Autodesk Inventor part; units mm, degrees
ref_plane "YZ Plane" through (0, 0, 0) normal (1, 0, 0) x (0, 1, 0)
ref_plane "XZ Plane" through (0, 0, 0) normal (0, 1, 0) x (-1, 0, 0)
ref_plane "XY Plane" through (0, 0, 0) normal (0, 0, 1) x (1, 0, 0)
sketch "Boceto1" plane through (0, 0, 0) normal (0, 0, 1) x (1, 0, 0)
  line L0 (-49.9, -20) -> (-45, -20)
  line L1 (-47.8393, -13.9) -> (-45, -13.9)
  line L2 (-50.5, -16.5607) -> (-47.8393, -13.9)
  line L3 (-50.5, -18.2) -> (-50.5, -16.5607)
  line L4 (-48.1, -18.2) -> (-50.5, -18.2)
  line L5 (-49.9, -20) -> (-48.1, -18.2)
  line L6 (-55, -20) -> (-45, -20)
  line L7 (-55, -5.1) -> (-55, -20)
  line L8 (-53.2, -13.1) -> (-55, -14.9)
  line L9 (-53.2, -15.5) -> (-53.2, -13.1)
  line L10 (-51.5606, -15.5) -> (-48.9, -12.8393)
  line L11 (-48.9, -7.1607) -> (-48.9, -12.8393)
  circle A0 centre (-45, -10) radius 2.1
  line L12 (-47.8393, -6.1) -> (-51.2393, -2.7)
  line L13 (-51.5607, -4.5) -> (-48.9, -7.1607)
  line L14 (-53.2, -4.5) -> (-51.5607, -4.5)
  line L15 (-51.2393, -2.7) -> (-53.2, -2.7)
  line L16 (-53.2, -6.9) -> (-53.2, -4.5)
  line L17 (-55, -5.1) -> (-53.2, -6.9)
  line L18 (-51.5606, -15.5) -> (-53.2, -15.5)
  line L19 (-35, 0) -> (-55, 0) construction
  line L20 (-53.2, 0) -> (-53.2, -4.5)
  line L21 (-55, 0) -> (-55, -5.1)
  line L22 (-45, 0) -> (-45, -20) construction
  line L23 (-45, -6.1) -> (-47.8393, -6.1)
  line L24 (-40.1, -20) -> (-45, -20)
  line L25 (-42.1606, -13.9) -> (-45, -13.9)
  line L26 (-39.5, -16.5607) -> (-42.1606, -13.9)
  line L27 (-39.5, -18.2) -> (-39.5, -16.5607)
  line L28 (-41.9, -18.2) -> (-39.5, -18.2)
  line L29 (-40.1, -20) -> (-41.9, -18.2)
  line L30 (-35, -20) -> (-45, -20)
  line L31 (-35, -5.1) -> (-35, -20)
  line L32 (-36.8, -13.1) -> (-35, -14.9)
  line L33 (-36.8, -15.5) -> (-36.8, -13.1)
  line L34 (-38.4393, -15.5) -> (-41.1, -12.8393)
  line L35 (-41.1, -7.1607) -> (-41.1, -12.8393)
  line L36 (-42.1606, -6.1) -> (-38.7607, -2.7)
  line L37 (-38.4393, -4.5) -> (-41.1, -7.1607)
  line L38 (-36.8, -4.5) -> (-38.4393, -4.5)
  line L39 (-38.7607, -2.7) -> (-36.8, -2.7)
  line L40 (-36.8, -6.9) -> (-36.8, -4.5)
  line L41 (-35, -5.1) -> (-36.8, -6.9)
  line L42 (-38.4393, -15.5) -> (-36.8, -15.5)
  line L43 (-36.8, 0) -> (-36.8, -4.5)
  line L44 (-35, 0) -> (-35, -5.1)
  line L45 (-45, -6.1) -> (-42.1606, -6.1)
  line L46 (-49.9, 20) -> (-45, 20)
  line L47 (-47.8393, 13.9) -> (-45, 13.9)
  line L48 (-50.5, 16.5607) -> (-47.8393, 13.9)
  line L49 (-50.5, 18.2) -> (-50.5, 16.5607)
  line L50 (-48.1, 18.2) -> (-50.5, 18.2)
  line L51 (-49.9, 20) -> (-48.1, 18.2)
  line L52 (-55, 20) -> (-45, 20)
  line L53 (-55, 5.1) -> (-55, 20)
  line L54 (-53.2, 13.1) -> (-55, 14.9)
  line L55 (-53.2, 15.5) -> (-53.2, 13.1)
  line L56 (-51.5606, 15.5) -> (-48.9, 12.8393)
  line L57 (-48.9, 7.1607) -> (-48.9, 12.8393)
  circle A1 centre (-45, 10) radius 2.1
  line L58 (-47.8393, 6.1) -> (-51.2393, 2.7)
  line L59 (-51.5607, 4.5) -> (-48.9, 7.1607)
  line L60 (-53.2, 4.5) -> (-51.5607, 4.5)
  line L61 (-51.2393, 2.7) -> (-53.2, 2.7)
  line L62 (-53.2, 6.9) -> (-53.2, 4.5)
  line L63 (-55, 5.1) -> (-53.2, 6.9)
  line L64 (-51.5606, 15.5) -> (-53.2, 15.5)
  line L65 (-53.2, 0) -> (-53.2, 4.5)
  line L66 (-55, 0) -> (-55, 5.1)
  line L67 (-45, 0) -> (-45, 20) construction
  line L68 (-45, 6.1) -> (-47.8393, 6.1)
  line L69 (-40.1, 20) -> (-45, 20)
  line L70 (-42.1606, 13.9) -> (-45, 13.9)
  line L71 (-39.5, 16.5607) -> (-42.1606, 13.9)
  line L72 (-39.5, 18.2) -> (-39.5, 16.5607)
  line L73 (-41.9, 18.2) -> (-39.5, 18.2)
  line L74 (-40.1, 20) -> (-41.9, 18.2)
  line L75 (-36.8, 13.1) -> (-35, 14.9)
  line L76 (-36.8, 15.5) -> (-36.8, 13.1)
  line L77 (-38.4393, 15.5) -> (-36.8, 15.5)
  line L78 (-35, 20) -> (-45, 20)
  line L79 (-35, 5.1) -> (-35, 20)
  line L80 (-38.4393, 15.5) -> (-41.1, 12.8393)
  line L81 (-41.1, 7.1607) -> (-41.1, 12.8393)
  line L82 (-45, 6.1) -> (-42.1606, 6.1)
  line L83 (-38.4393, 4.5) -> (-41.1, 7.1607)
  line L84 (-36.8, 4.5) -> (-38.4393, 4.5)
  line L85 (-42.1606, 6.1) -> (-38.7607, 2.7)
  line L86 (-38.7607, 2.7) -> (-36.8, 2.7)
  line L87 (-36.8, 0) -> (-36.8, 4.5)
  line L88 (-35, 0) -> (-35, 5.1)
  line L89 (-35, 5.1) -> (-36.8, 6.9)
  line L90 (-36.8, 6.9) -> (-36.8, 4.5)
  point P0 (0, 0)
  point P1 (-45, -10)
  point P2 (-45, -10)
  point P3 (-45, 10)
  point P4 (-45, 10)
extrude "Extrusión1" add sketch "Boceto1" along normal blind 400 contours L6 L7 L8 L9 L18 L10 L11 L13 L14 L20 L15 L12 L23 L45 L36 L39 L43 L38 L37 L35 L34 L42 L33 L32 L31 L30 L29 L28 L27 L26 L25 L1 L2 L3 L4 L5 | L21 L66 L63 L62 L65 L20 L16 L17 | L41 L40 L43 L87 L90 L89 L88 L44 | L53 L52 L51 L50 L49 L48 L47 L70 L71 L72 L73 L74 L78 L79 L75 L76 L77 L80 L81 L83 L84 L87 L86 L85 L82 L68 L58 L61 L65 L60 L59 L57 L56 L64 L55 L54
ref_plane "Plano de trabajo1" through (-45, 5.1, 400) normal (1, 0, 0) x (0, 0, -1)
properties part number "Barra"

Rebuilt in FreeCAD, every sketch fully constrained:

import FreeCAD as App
import Part
import Sketcher
from FreeCAD import Vector


def add_polygon(sketch, points):
    """Adds a closed chain of lines whose ends are joined by coincident constraints."""
    first, n = sketch.GeometryCount, len(points)
    for a, b in zip(points, points[1:] + points[:1]):
        sketch.addGeometry(Part.LineSegment(App.Vector(*a, 0), App.Vector(*b, 0)), False)
    for i in range(n):
        sketch.addConstraint(Sketcher.Constraint("Coincident", first + i, 2, first + (i + 1) % n, 1))

doc = App.newDocument("Part")
params = doc.addObject("Spreadsheet::Sheet", "Params")
for row, (alias, value) in enumerate([
    ("sketch1_diameter", "4.2 mm"),
    ("sketch1_width", "5.1 mm"),
    ("sketch1_width2", "2.4 mm"),
    ("sketch1_height", "10.2 mm"),
    ("sketch1_height2", "5.4 mm"),
    ("pad1_length", "400 mm"),
], start=1):
    params.set(f"A{row}", alias)
    params.set(f"B{row}", "=" + value)
    params.setAlias(f"B{row}", alias)

body = doc.addObject("PartDesign::Body", "Body")

sketch1 = body.newObject("Sketcher::SketchObject", "Sketch")
sketch1.AttachmentSupport = (doc.getObject("XY_Plane"), [""])
sketch1.MapMode = "FlatFace"
add_polygon(sketch1, [(-55, -20), (-49.9, -20), (-48.1, -18.2), (-50.5, -18.2), (-50.5, -16.6), (-47.8, -13.9), (-42.2, -13.9), (-39.5, -16.6), (-39.5, -18.2), (-41.9, -18.2), (-40.1, -20), (-35, -20), (-35, -14.9), (-36.8, -13.1), (-36.8, -15.5), (-38.4, -15.5), (-41.1, -12.8), (-41.1, -7.2), (-38.4, -4.5), (-36.8, -4.5), (-36.8, -6.9), (-35, -5.1), (-35, 5.1), (-36.8, 6.9), (-36.8, 4.5), (-38.4, 4.5), (-41.1, 7.2), (-41.1, 12.8), (-38.4, 15.5), (-36.8, 15.5), (-36.8, 13.1), (-35, 14.9), (-35, 20), (-40.1, 20), (-41.9, 18.2), (-39.5, 18.2), (-39.5, 16.6), (-42.2, 13.9), (-47.8, 13.9), (-50.5, 16.6), (-50.5, 18.2), (-48.1, 18.2), (-49.9, 20), (-55, 20), (-55, 14.9), (-53.2, 13.1), (-53.2, 15.5), (-51.6, 15.5), (-48.9, 12.8), (-48.9, 7.2), (-51.6, 4.5), (-53.2, 4.5), (-53.2, 6.9), (-55, 5.1), (-55, -5.1), (-53.2, -6.9), (-53.2, -4.5), (-51.6, -4.5), (-48.9, -7.2), (-48.9, -12.8), (-51.6, -15.5), (-53.2, -15.5), (-53.2, -13.1), (-55, -14.9)])
add_polygon(sketch1, [(-51.2, -2.7), (-53.2, -2.7), (-53.2, 2.7), (-51.2, 2.7), (-47.8, 6.1), (-42.2, 6.1), (-38.8, 2.7), (-36.8, 2.7), (-36.8, -2.7), (-38.8, -2.7), (-42.2, -6.1), (-47.8, -6.1)])
sketch1.addGeometry(Part.Circle(Vector(-45, -10, 0), Vector(0, 0, 1), 2.1), False)
sketch1.addGeometry(Part.Circle(Vector(-45, 10, 0), Vector(0, 0, 1), 2.1), False)
sketch1.addConstraint([
    Sketcher.Constraint("Horizontal", 0),
    Sketcher.Constraint("Horizontal", 2),
    Sketcher.Constraint("Vertical", 3),
    Sketcher.Constraint("Horizontal", 5),
    Sketcher.Constraint("Vertical", 7),
    Sketcher.Constraint("Horizontal", 8),
    Sketcher.Constraint("Horizontal", 10),
    Sketcher.Constraint("Vertical", 11),
    Sketcher.Constraint("Vertical", 13),
    Sketcher.Constraint("Horizontal", 14),
    Sketcher.Constraint("Vertical", 16),
    Sketcher.Constraint("Horizontal", 18),
    Sketcher.Constraint("Vertical", 19),
    Sketcher.Constraint("Vertical", 21),
    Sketcher.Constraint("Vertical", 23),
    Sketcher.Constraint("Horizontal", 24),
    Sketcher.Constraint("Vertical", 26),
    Sketcher.Constraint("Horizontal", 28),
    Sketcher.Constraint("Vertical", 29),
    Sketcher.Constraint("Vertical", 31),
    Sketcher.Constraint("Horizontal", 32),
    Sketcher.Constraint("Horizontal", 34),
    Sketcher.Constraint("Vertical", 35),
    Sketcher.Constraint("Horizontal", 37),
    Sketcher.Constraint("Vertical", 39),
    Sketcher.Constraint("Horizontal", 40),
    Sketcher.Constraint("Horizontal", 42),
    Sketcher.Constraint("Vertical", 43),
    Sketcher.Constraint("Vertical", 45),
    Sketcher.Constraint("Horizontal", 46),
    Sketcher.Constraint("Vertical", 48),
    Sketcher.Constraint("Horizontal", 50),
    Sketcher.Constraint("Vertical", 51),
    Sketcher.Constraint("Vertical", 53),
    Sketcher.Constraint("Vertical", 55),
    Sketcher.Constraint("Horizontal", 56),
    Sketcher.Constraint("Vertical", 58),
    Sketcher.Constraint("Horizontal", 60),
    Sketcher.Constraint("Vertical", 61),
    Sketcher.Constraint("Vertical", 63),
    Sketcher.Constraint("Horizontal", 64),
    Sketcher.Constraint("Vertical", 65),
    Sketcher.Constraint("Horizontal", 66),
    Sketcher.Constraint("Horizontal", 68),
    Sketcher.Constraint("Horizontal", 70),
    Sketcher.Constraint("Vertical", 71),
    Sketcher.Constraint("Horizontal", 72),
    Sketcher.Constraint("Horizontal", 74),
    Sketcher.Constraint("Equal", 76, 77),
    Sketcher.Constraint("Symmetric", 76, 3, 77, 3, -1),
    Sketcher.Constraint("Symmetric", 19, 2, 22, 2, -1),
    Sketcher.Constraint("Symmetric", 17, 2, 24, 2, -1),
    Sketcher.Constraint("Symmetric", 16, 2, 25, 2, -1),
    Sketcher.Constraint("Symmetric", 14, 2, 27, 2, -1),
    Sketcher.Constraint("Symmetric", 12, 2, 29, 2, -1),
    Sketcher.Constraint("Symmetric", 11, 2, 30, 2, -1),
    Sketcher.Constraint("Symmetric", 9, 2, 32, 2, -1),
    Sketcher.Constraint("Symmetric", 8, 2, 33, 2, -1),
    Sketcher.Constraint("Symmetric", 6, 2, 35, 2, -1),
    Sketcher.Constraint("Symmetric", 5, 2, 36, 2, -1),
    Sketcher.Constraint("Symmetric", 3, 2, 38, 2, -1),
    Sketcher.Constraint("Symmetric", 1, 2, 40, 2, -1),
    Sketcher.Constraint("Symmetric", 0, 2, 41, 2, -1),
    Sketcher.Constraint("Symmetric", 51, 2, 54, 2, -1),
    Sketcher.Constraint("Symmetric", 49, 2, 56, 2, -1),
    Sketcher.Constraint("Symmetric", 48, 2, 57, 2, -1),
    Sketcher.Constraint("Symmetric", 46, 2, 59, 2, -1),
    Sketcher.Constraint("Symmetric", 44, 2, 61, 2, -1),
    Sketcher.Constraint("Symmetric", 43, 2, 62, 2, -1),
    Sketcher.Constraint("Symmetric", 69, 2, 72, 2, -1),
    Sketcher.Constraint("Symmetric", 68, 2, 73, 2, -1),
    Sketcher.Constraint("Symmetric", 66, 2, 75, 2, -1),
    Sketcher.Constraint("Parallel", 1, 4),
    Sketcher.Constraint("Perpendicular", 4, 6),
    Sketcher.Constraint("Parallel", 6, 9),
    Sketcher.Constraint("Parallel", 9, 12),
    Sketcher.Constraint("Parallel", 12, 15),
    Sketcher.Constraint("Perpendicular", 15, 17),
    Sketcher.Constraint("Parallel", 17, 20),
    Sketcher.Constraint("Perpendicular", 20, 22),
    Sketcher.Constraint("Parallel", 22, 25),
    Sketcher.Constraint("Perpendicular", 25, 27),
    Sketcher.Constraint("Perpendicular", 36, 38),
    Sketcher.Constraint("Parallel", 41, 44),
    Sketcher.Constraint("Parallel", 44, 47),
    Sketcher.Constraint("Perpendicular", 47, 49),
    Sketcher.Constraint("Parallel", 49, 52),
    Sketcher.Constraint("Perpendicular", 52, 54),
    Sketcher.Constraint("Perpendicular", 57, 59),
    Sketcher.Constraint("Parallel", 62, 67),
    Sketcher.Constraint("Perpendicular", 67, 69),
    Sketcher.Constraint("Perpendicular", 73, 75),
    Sketcher.Constraint("Horizontal", 3, 2, 6, 2),
    Sketcher.Constraint("Horizontal", 2, 2, 7, 2),
    Sketcher.Constraint("Horizontal", 0, 2, 9, 2),
    Sketcher.Constraint("Horizontal", 30, 2, 43, 2),
    Sketcher.Constraint("Horizontal", 29, 2, 44, 2),
    Sketcher.Constraint("Horizontal", 28, 2, 45, 2),
    Sketcher.Constraint("Horizontal", 26, 2, 47, 2),
    Sketcher.Constraint("Horizontal", 25, 2, 48, 2),
    Sketcher.Constraint("Horizontal", 24, 2, 49, 2),
    Sketcher.Constraint("Horizontal", 22, 2, 51, 2),
    Sketcher.Constraint("Horizontal", 21, 2, 52, 2),
    Sketcher.Constraint("Horizontal", 66, 2, 69, 2),
    Sketcher.Constraint("Vertical", 14, 2, 17, 2),
    Sketcher.Constraint("Vertical", 13, 2, 18, 2),
    Sketcher.Constraint("Vertical", 11, 2, 20, 2),
    Sketcher.Constraint("Vertical", 45, 2, 50, 2),
    Sketcher.Constraint("Vertical", 61, 2, 64, 2),
    Sketcher.Constraint("Vertical", 37, 2, 67, 2),
    Sketcher.Constraint("Vertical", 36, 2, 68, 2),
    Sketcher.Constraint("Vertical", 29, 2, 70, 2),
    Sketcher.Constraint("Equal", 2, 8),
    Sketcher.Constraint("Equal", 0, 10),
    Sketcher.Constraint("Equal", 28, 46),
    Sketcher.Constraint("Equal", 60, 3),
    Sketcher.Constraint("Equal", 42, 11),
    Sketcher.Constraint("Equal", 40, 13),
    Sketcher.Constraint("Equal", 74, 16),
    Sketcher.Constraint("Equal", 13, 19),
    Sketcher.Constraint("Equal", 9, 12),
    Sketcher.Constraint("Equal", 6, 15),
    Sketcher.Constraint("Diameter", 76, 4.2),
    Sketcher.Constraint("DistanceX", 0, 1, 0, 2, 5.1),
    Sketcher.Constraint("DistanceX", 2, 2, 2, 1, 2.4),
    Sketcher.Constraint("DistanceY", 21, 1, 21, 2, 10.2),
    Sketcher.Constraint("DistanceY", 65, 1, 65, 2, 5.4),
    Sketcher.Constraint("DistanceX", 76, 3, -1, 1, 45.0),
    Sketcher.Constraint("DistanceY", 76, 3, -1, 1, 10.0),
    Sketcher.Constraint("DistanceY", 0, 2, -1, 1, 20.0),
    Sketcher.Constraint("DistanceX", 10, 2, -1, 1, 35.0),
    Sketcher.Constraint("DistanceX", 1, 2, -1, 1, 48.1),
    Sketcher.Constraint("DistanceY", 4, 2, -1, 1, 13.9),
    Sketcher.Constraint("DistanceY", -1, 1, 67, 2, 6.1),
    Sketcher.Constraint("DistanceX", 5, 1, 5, 2, 5.6787),
])
sketch1.setExpression("Constraints[198]", "Params.sketch1_diameter")
sketch1.setExpression("Constraints[199]", "Params.sketch1_width")
sketch1.setExpression("Constraints[200]", "Params.sketch1_width2")
sketch1.setExpression("Constraints[201]", "Params.sketch1_height")
sketch1.setExpression("Constraints[202]", "Params.sketch1_height2")
pad1 = body.newObject("PartDesign::Pad", "Pad")
pad1.Profile = sketch1
pad1.setExpression("Length", "Params.pad1_length")

doc.recompute()
